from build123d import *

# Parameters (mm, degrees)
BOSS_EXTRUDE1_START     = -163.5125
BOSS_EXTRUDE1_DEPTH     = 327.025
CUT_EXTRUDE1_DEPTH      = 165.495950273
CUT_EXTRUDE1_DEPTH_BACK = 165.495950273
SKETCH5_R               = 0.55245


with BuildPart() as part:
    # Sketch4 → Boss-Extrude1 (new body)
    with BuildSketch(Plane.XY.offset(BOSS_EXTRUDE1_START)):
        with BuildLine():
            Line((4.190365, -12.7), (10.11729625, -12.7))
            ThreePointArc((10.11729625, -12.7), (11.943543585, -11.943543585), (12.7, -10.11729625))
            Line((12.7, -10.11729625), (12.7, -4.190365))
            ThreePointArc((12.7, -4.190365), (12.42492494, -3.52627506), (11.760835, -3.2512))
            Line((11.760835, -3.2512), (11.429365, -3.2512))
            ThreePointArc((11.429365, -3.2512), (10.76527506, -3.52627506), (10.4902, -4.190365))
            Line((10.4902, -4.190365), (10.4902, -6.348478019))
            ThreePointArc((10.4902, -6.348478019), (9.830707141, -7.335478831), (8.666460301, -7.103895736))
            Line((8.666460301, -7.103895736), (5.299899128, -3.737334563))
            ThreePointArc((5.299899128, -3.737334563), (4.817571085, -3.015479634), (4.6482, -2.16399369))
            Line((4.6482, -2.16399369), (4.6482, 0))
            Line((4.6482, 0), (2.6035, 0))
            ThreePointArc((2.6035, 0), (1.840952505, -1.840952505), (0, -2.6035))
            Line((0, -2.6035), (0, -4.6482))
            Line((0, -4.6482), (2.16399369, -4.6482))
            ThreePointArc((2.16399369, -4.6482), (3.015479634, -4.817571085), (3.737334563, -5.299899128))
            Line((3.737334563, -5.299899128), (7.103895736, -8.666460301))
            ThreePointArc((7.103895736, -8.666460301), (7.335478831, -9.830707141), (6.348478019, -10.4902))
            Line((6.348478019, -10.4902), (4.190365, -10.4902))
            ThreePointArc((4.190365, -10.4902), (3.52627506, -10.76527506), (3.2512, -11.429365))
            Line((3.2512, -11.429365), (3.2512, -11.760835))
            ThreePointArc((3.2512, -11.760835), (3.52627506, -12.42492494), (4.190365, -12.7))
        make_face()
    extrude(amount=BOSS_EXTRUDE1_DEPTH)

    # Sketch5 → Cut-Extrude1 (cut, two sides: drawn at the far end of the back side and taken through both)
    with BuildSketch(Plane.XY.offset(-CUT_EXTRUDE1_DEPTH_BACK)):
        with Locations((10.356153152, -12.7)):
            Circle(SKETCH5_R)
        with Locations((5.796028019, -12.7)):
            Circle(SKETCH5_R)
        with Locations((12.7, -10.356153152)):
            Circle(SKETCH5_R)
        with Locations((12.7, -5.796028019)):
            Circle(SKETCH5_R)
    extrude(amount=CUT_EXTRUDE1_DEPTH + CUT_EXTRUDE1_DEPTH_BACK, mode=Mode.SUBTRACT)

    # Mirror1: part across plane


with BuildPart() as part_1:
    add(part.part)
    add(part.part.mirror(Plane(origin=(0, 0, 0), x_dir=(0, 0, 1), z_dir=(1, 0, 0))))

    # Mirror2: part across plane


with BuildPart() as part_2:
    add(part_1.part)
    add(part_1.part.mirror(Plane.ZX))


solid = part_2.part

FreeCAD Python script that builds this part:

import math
import FreeCAD as App
import Part
import Sketcher

V = App.Vector
Q = App.Units.Quantity

doc = App.newDocument("Part")
body = doc.addObject("PartDesign::Body", "Body")

# Sketch on XY plane
sketch1 = doc.addObject("Sketcher::SketchObject", "Sketch")
body.addObject(sketch1)
sketch1.AttachmentSupport = (doc.XY_Plane, [""])
sketch1.MapMode = "FlatFace"
sketch1.AttachmentOffset = App.Placement(V(0, 0, -6.4375 * 25.4), App.Rotation())
sketch1.addGeometry(Part.LineSegment(V(4.19, -12.7, 0), V(10.12, -12.7, 0)), False)
sketch1.addGeometry(Part.ArcOfCircle(Part.Circle(V(10.12, -10.12, 0), V(0, 0, 1), 2.58), math.radians(-90), math.radians(0)), False)
sketch1.addGeometry(Part.LineSegment(V(12.7, -10.12, 0), V(12.7, -4.19, 0)), False)
sketch1.addGeometry(Part.ArcOfCircle(Part.Circle(V(11.76, -4.19, 0), V(0, 0, 1), 0.94), math.radians(0), math.radians(90)), False)
sketch1.addGeometry(Part.LineSegment(V(11.76, -3.25, 0), V(11.43, -3.25, 0)), False)
sketch1.addGeometry(Part.ArcOfCircle(Part.Circle(V(11.43, -4.19, 0), V(0, 0, 1), 0.94), math.radians(90), math.radians(180)), False)
sketch1.addGeometry(Part.LineSegment(V(10.49, -4.19, 0), V(10.49, -6.35, 0)), False)
sketch1.addGeometry(Part.ArcOfCircle(Part.Circle(V(9.42, -6.35, 0), V(0, 0, 1), 1.07), math.radians(-135), math.radians(0)), False)
sketch1.addGeometry(Part.LineSegment(V(8.67, -7.1, 0), V(5.3, -3.74, 0)), False)
sketch1.addGeometry(Part.ArcOfCircle(Part.Circle(V(6.87, -2.16, 0), V(0, 0, 1), 2.23), math.radians(-180), math.radians(-135)), False)
sketch1.addGeometry(Part.LineSegment(V(4.65, -2.16, 0), V(4.65, 0, 0)), False)
sketch1.addGeometry(Part.LineSegment(V(4.65, 0, 0), V(2.6, 0, 0)), False)
sketch1.addGeometry(Part.ArcOfCircle(Part.Circle(V(0, 0, 0), V(0, 0, 1), 2.6), math.radians(-90), math.radians(0)), False)
sketch1.addGeometry(Part.LineSegment(V(0, -2.6, 0), V(0, -4.65, 0)), False)
sketch1.addGeometry(Part.LineSegment(V(0, -4.65, 0), V(2.16, -4.65, 0)), False)
sketch1.addGeometry(Part.ArcOfCircle(Part.Circle(V(2.16, -6.87, 0), V(0, 0, 1), 2.23), math.radians(45), math.radians(90)), False)
sketch1.addGeometry(Part.LineSegment(V(3.74, -5.3, 0), V(7.1, -8.67, 0)), False)
sketch1.addGeometry(Part.ArcOfCircle(Part.Circle(V(6.35, -9.42, 0), V(0, 0, 1), 1.07), math.radians(-90), math.radians(45)), False)
sketch1.addGeometry(Part.LineSegment(V(6.35, -10.49, 0), V(4.19, -10.49, 0)), False)
sketch1.addGeometry(Part.ArcOfCircle(Part.Circle(V(4.19, -11.43, 0), V(0, 0, 1), 0.94), math.radians(90), math.radians(180)), False)
sketch1.addGeometry(Part.LineSegment(V(3.25, -11.43, 0), V(3.25, -11.76, 0)), False)
sketch1.addGeometry(Part.ArcOfCircle(Part.Circle(V(4.19, -11.76, 0), V(0, 0, 1), 0.94), math.radians(-180), math.radians(-90)), False)
sketch1.addConstraint(Sketcher.Constraint("Tangent", 0, 2, 1, 1))
sketch1.addConstraint(Sketcher.Constraint("Tangent", 1, 2, 2, 1))
sketch1.addConstraint(Sketcher.Constraint("Tangent", 2, 2, 3, 1))
sketch1.addConstraint(Sketcher.Constraint("Tangent", 3, 2, 4, 1))
sketch1.addConstraint(Sketcher.Constraint("Tangent", 4, 2, 5, 1))
sketch1.addConstraint(Sketcher.Constraint("Tangent", 5, 2, 6, 1))
sketch1.addConstraint(Sketcher.Constraint("Tangent", 6, 2, 7, 2))
sketch1.addConstraint(Sketcher.Constraint("Tangent", 7, 1, 8, 1))
sketch1.addConstraint(Sketcher.Constraint("Tangent", 8, 2, 9, 2))
sketch1.addConstraint(Sketcher.Constraint("Tangent", 9, 1, 10, 1))
sketch1.addConstraint(Sketcher.Constraint("Coincident", 10, 2, 11, 1))
sketch1.addConstraint(Sketcher.Constraint("Coincident", 11, 2, 12, 2))
sketch1.addConstraint(Sketcher.Constraint("Coincident", 12, 1, 13, 1))
sketch1.addConstraint(Sketcher.Constraint("Coincident", 13, 2, 14, 1))
sketch1.addConstraint(Sketcher.Constraint("Tangent", 14, 2, 15, 2))
sketch1.addConstraint(Sketcher.Constraint("Tangent", 15, 1, 16, 1))
sketch1.addConstraint(Sketcher.Constraint("Tangent", 16, 2, 17, 2))
sketch1.addConstraint(Sketcher.Constraint("Tangent", 17, 1, 18, 1))
sketch1.addConstraint(Sketcher.Constraint("Tangent", 18, 2, 19, 1))
sketch1.addConstraint(Sketcher.Constraint("Tangent", 19, 2, 20, 1))
sketch1.addConstraint(Sketcher.Constraint("Tangent", 20, 2, 21, 1))
sketch1.addConstraint(Sketcher.Constraint("Tangent", 21, 2, 0, 1))
sketch1.addConstraint(Sketcher.Constraint("Horizontal", 0))
sketch1.addConstraint(Sketcher.Constraint("Vertical", 2))
sketch1.addConstraint(Sketcher.Constraint("Horizontal", 4))
sketch1.addConstraint(Sketcher.Constraint("Vertical", 6))
sketch1.addConstraint(Sketcher.Constraint("Vertical", 10))
sketch1.addConstraint(Sketcher.Constraint("Horizontal", 11))
sketch1.addConstraint(Sketcher.Constraint("Vertical", 13))
sketch1.addConstraint(Sketcher.Constraint("Horizontal", 14))
sketch1.addConstraint(Sketcher.Constraint("Horizontal", 18))
sketch1.addConstraint(Sketcher.Constraint("Vertical", 20))
sketch1.addConstraint(Sketcher.Constraint("Coincident", 12, 3, -1, 1))
sketch1.addConstraint(Sketcher.Constraint("Equal", 3, 5))
sketch1.addConstraint(Sketcher.Constraint("Equal", 9, 15))
sketch1.addConstraint(Sketcher.Constraint("Equal", 7, 17))
sketch1.addConstraint(Sketcher.Constraint("Equal", 5, 19))
sketch1.addConstraint(Sketcher.Constraint("Equal", 19, 21))
sketch1.addConstraint(Sketcher.Constraint("PointOnObject", 10, 2, -1))
sketch1.addConstraint(Sketcher.Constraint("PointOnObject", 12, 1, -2))
sketch1.addConstraint(Sketcher.Constraint("Parallel", 8, 16))
sketch1.addConstraint(Sketcher.Constraint("Equal", 0, 2))
sketch1.addConstraint(Sketcher.Constraint("Equal", 18, 6))
sketch1.addConstraint(Sketcher.Constraint("Equal", 14, 10))
sketch1.addConstraint(Sketcher.Constraint("Equal", 11, 13))
sketch1.addConstraint(Sketcher.Constraint("Equal", 4, 20))
sketch1.addConstraint(Sketcher.Constraint("Equal", 8, 16))
sketch1.addConstraint(Sketcher.Constraint("DistanceY", 0, 2, -1, 1, Q("0.5 in")))
sketch1.addConstraint(Sketcher.Constraint("Radius", 9, Q("0.0876 in")))
sketch1.addConstraint(Sketcher.Constraint("Radius", 12, Q("0.1025 in")))
sketch1.addConstraint(Sketcher.Constraint("DistanceX", 9, 1, 5, 2, Q("0.23 in")))
sketch1.addConstraint(Sketcher.Constraint("DistanceX", 11, 2, 11, 1, Q("0.0805 in")))
sketch1.addConstraint(Sketcher.Constraint("DistanceY", 3, 2, -1, 1, Q("0.128 in")))
sketch1.addConstraint(Sketcher.Constraint("Radius", 7, Q("1.068322 mm")))
sketch1.addConstraint(Sketcher.Constraint("DistanceX", 17, 3, 7, 3, Q("0.121 in")))
sketch1.addConstraint(Sketcher.Constraint("Radius", 1, Q("2.582704 mm")))
sketch1.addConstraint(Sketcher.Constraint("Radius", 3, Q("0.939165 mm")))
pad1 = doc.addObject("PartDesign::Pad", "Pad")
body.addObject(pad1)
pad1.Profile = sketch1
pad1.Length = Q("12.875 in")

# Sketch on XY plane
sketch2 = doc.addObject("Sketcher::SketchObject", "Sketch001")
body.addObject(sketch2)
sketch2.AttachmentSupport = (doc.XY_Plane, [""])
sketch2.MapMode = "FlatFace"
sketch2.addGeometry(Part.Circle(V(10.4, -12.7, 0), V(0, 0, 1), 0.6), False)
sketch2.addGeometry(Part.Circle(V(5.8, -12.7, 0), V(0, 0, 1), 0.6), False)
sketch2.addGeometry(Part.Circle(V(12.7, -10.4, 0), V(0, 0, 1), 0.6), False)
sketch2.addGeometry(Part.Circle(V(12.7, -5.8, 0), V(0, 0, 1), 0.6), False)
sketch2.addConstraint(Sketcher.Constraint("Equal", 0, 1))
sketch2.addConstraint(Sketcher.Constraint("Equal", 1, 2))
sketch2.addConstraint(Sketcher.Constraint("Equal", 2, 3))
sketch2.addConstraint(Sketcher.Constraint("Horizontal", 0, 3, 1, 3))
sketch2.addConstraint(Sketcher.Constraint("Vertical", 2, 3, 3, 3))
sketch2.addConstraint(Sketcher.Constraint("Diameter", 0, Q("0.0435 in")))
sketch2.addConstraint(Sketcher.Constraint("DistanceY", 0, 3, -1, 1, Q("0.5 in")))
sketch2.addConstraint(Sketcher.Constraint("DistanceX", -1, 1, 2, 3, Q("0.5 in")))
sketch2.addConstraint(Sketcher.Constraint("DistanceX", -1, 1, 1, 3, Q("5.796028 mm")))
sketch2.addConstraint(Sketcher.Constraint("DistanceY", 3, 3, -1, 1, Q("5.796028 mm")))
sketch2.addConstraint(Sketcher.Constraint("DistanceX", -1, 1, 0, 3, Q("10.356153 mm")))
sketch2.addConstraint(Sketcher.Constraint("DistanceY", 2, 3, -1, 1, Q("10.356153 mm")))
pocket1 = doc.addObject("PartDesign::Pocket", "Pocket")
body.addObject(pocket1)
pocket1.Profile = sketch2
pocket1.Type = "ThroughAll"
pocket1.Midplane = True
body2 = doc.addObject("PartDesign::Body", "Body001")
doc.recompute()

body2.BaseFeature = body
doc.recompute()

mirroring = doc.addObject("Part::Mirroring", "Mirroring")
mirroring.Source = body
mirroring.Base = V(0, 0, 0)
mirroring.Normal = V(1, 0, 0)
body3 = doc.addObject("PartDesign::Body", "Body002")
body3.BaseFeature = mirroring
boolean = doc.addObject("PartDesign::Boolean", "Boolean")
body2.addObject(boolean)
boolean.Type = "Fuse"
boolean.addObjects([body3])
doc.recompute()
body4 = doc.addObject("PartDesign::Body", "Body003")
doc.recompute()

body4.BaseFeature = body2
doc.recompute()

mirroring2 = doc.addObject("Part::Mirroring", "Mirroring001")
mirroring2.Source = body2
mirroring2.Base = V(0, 0, 0)
mirroring2.Normal = V(0, 1, 0)
body5 = doc.addObject("PartDesign::Body", "Body004")
body5.BaseFeature = mirroring2
boolean2 = doc.addObject("PartDesign::Boolean", "Boolean001")
body4.addObject(boolean2)
boolean2.Type = "Fuse"
boolean2.addObjects([body5])
doc.recompute()
mirroring.Visibility = False
mirroring2.Visibility = False

doc.recompute()
